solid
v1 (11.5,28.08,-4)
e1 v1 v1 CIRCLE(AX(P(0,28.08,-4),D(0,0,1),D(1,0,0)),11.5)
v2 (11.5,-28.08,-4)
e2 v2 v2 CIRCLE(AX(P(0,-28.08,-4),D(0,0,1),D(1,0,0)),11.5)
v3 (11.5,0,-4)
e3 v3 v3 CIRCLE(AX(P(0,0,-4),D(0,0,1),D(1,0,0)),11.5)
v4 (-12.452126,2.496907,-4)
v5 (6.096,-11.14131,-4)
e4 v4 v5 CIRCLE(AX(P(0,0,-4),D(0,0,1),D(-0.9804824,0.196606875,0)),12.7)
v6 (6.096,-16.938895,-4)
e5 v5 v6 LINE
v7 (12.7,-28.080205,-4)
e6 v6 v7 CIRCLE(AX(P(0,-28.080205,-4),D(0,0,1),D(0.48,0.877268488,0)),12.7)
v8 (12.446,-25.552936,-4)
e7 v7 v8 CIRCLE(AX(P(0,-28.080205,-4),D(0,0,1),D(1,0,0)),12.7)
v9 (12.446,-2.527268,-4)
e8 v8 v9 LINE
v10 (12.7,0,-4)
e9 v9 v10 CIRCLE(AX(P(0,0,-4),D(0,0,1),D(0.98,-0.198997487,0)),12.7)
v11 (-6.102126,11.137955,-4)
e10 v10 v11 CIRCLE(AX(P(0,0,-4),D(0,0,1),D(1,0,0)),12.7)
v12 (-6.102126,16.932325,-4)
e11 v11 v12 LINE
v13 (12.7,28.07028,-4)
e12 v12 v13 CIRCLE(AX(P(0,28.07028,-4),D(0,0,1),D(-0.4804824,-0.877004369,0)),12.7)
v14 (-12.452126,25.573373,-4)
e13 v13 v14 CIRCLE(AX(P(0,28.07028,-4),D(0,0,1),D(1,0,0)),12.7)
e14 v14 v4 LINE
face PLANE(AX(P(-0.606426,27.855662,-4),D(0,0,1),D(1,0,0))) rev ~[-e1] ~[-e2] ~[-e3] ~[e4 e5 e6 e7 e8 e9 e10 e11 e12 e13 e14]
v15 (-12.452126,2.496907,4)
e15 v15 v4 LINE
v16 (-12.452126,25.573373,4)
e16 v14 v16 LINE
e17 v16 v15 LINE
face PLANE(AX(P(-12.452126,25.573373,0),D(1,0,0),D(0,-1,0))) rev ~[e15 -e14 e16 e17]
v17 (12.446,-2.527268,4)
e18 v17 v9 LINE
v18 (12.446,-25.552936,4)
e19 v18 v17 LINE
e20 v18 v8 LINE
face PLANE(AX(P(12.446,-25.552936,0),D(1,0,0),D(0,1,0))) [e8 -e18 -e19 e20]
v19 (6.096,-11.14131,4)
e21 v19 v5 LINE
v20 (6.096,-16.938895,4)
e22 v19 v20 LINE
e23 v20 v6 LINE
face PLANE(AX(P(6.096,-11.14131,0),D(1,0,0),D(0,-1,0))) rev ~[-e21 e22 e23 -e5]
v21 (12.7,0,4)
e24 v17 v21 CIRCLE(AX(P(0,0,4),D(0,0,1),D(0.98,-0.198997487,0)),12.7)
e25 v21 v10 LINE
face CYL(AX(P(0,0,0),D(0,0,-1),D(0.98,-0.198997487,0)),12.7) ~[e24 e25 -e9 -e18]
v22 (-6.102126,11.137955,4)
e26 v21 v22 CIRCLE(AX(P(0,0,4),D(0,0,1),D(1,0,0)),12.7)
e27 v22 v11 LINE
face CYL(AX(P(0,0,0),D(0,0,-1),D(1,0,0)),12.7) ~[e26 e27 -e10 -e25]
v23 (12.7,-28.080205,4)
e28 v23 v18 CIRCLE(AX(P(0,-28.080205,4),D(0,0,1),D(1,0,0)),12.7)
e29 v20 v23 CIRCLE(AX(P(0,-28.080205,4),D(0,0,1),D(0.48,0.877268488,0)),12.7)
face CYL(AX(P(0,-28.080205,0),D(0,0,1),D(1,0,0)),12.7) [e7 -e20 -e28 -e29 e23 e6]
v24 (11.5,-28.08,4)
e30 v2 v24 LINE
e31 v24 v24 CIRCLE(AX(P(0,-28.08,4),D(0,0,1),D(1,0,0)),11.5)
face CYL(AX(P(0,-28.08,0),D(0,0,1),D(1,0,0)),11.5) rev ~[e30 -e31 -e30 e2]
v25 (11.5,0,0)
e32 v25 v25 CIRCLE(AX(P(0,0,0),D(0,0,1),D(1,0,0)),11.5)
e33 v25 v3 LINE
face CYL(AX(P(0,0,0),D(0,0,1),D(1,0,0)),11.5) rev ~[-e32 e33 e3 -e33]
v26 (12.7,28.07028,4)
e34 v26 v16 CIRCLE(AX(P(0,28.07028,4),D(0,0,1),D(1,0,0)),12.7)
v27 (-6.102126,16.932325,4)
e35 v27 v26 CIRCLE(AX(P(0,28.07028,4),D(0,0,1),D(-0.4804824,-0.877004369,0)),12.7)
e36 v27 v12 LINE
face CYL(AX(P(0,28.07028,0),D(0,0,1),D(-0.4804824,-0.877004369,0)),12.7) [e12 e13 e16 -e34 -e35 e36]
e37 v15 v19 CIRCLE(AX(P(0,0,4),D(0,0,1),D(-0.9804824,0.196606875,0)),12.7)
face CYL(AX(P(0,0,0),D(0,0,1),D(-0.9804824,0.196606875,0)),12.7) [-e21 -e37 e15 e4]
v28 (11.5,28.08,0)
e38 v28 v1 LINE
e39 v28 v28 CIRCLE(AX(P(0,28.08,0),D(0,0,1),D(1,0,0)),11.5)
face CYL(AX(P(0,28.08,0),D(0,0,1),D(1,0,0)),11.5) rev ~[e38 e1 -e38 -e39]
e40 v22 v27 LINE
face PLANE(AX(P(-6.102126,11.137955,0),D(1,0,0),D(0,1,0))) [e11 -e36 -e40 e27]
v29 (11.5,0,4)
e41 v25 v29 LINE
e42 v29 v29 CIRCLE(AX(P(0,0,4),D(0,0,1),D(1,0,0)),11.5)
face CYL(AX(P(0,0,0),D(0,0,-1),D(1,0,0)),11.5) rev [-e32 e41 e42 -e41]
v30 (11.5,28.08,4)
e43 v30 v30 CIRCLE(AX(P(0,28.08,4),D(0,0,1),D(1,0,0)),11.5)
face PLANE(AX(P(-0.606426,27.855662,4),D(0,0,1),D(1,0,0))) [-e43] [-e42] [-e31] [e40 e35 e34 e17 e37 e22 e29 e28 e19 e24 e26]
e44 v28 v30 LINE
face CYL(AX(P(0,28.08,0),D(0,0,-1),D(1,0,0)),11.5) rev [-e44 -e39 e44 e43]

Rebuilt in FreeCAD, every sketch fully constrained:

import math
import FreeCAD as App
import Part
import Sketcher
from FreeCAD import Vector

doc = App.newDocument("Part")
params = doc.addObject("Spreadsheet::Sheet", "Params")
for row, (alias, value) in enumerate([
    ("sketch1_radius", "12.7 mm"),
    ("pad1_length", "8 mm"),
    ("sketch2_diameter", "23 mm"),
    ("pocket1_length", "8 mm"),
], start=1):
    params.set(f"A{row}", alias)
    params.set(f"B{row}", "=" + value)
    params.setAlias(f"B{row}", alias)

body = doc.addObject("PartDesign::Body", "Body")

# Sketch on XY plane
sketch1 = doc.addObject("Sketcher::SketchObject", "Sketch")
body.addObject(sketch1)
sketch1.AttachmentSupport = (doc.XY_Plane, [""])
sketch1.MapMode = "FlatFace"
sketch1.addGeometry(Part.ArcOfCircle(Part.Circle(Vector(0, 28.07028, 0), Vector(0, 0, 1), 12.7), math.radians(-118.716913), math.radians(0)), False)
sketch1.addGeometry(Part.ArcOfCircle(Part.Circle(Vector(0, 28.07028, 0), Vector(0, 0, 1), 12.7), math.radians(0), math.radians(191.338608)), False)
sketch1.addGeometry(Part.LineSegment(Vector(-12.452126, 25.573373, 0), Vector(-12.452126, 2.496907, 0)), False)
sketch1.addGeometry(Part.ArcOfCircle(Part.Circle(Vector(0, 0, 0), Vector(0, 0, 1), 12.7), math.radians(168.661392), math.radians(298.685402)), False)
sketch1.addGeometry(Part.LineSegment(Vector(6.096, -11.14131, 0), Vector(6.096, -16.938895, 0)), False)
sketch1.addGeometry(Part.ArcOfCircle(Part.Circle(Vector(0, -28.080205, 0), Vector(0, 0, 1), 12.7), math.radians(61.314598), math.radians(360)), False)
sketch1.addGeometry(Part.ArcOfCircle(Part.Circle(Vector(0, -28.080205, 0), Vector(0, 0, 1), 12.7), math.radians(0), math.radians(11.478341)), False)
sketch1.addGeometry(Part.LineSegment(Vector(12.446, -25.552936, 0), Vector(12.446, -2.527268, 0)), False)
sketch1.addGeometry(Part.ArcOfCircle(Part.Circle(Vector(0, 0, 0), Vector(0, 0, 1), 12.7), math.radians(-11.478341), math.radians(0)), False)
sketch1.addGeometry(Part.ArcOfCircle(Part.Circle(Vector(0, 0, 0), Vector(0, 0, 1), 12.7), math.radians(0), math.radians(118.716913)), False)
sketch1.addGeometry(Part.LineSegment(Vector(-6.102126, 11.137955, 0), Vector(-6.102126, 16.932325, 0)), False)
sketch1.addConstraint(Sketcher.Constraint("Tangent", 0, 2, 1, 1))
sketch1.addConstraint(Sketcher.Constraint("Coincident", 1, 2, 2, 1))
sketch1.addConstraint(Sketcher.Constraint("Coincident", 2, 2, 3, 1))
sketch1.addConstraint(Sketcher.Constraint("Coincident", 3, 2, 4, 1))
sketch1.addConstraint(Sketcher.Constraint("Coincident", 4, 2, 5, 1))
sketch1.addConstraint(Sketcher.Constraint("Tangent", 5, 2, 6, 1))
sketch1.addConstraint(Sketcher.Constraint("Coincident", 6, 2, 7, 1))
sketch1.addConstraint(Sketcher.Constraint("Coincident", 7, 2, 8, 1))
sketch1.addConstraint(Sketcher.Constraint("Tangent", 8, 2, 9, 1))
sketch1.addConstraint(Sketcher.Constraint("Coincident", 9, 2, 10, 1))
sketch1.addConstraint(Sketcher.Constraint("Coincident", 10, 2, 0, 1))
sketch1.addConstraint(Sketcher.Constraint("Vertical", 2))
sketch1.addConstraint(Sketcher.Constraint("Vertical", 4))
sketch1.addConstraint(Sketcher.Constraint("Vertical", 7))
sketch1.addConstraint(Sketcher.Constraint("Vertical", 10))
sketch1.addConstraint(Sketcher.Constraint("Coincident", 3, 3, -1, 1))
sketch1.addConstraint(Sketcher.Constraint("Coincident", 8, 3, -1, 1))
sketch1.addConstraint(Sketcher.Constraint("Equal", 0, 1))
sketch1.addConstraint(Sketcher.Constraint("Equal", 1, 3))
sketch1.addConstraint(Sketcher.Constraint("Equal", 3, 5))
sketch1.addConstraint(Sketcher.Constraint("Equal", 5, 6))
sketch1.addConstraint(Sketcher.Constraint("Equal", 6, 8))
sketch1.addConstraint(Sketcher.Constraint("Equal", 8, 9))
sketch1.addConstraint(Sketcher.Constraint("PointOnObject", 0, 3, -2))
sketch1.addConstraint(Sketcher.Constraint("PointOnObject", 5, 3, -2))
sketch1.addConstraint(Sketcher.Constraint("PointOnObject", 8, 2, -1))
sketch1.addConstraint(Sketcher.Constraint("Horizontal", 1, 3, 0, 2))
sketch1.addConstraint(Sketcher.Constraint("Horizontal", 6, 3, 5, 2))
sketch1.addConstraint(Sketcher.Constraint("Radius", 0, 12.7))
sketch1.addConstraint(Sketcher.Constraint("DistanceX", 4, 2, 6, 2, 6.35))
sketch1.addConstraint(Sketcher.Constraint("DistanceX", 2, 2, 9, 2, 6.35))
sketch1.addConstraint(Sketcher.Constraint("DistanceX", -1, 1, 3, 2, 6.096))
sketch1.addConstraint(Sketcher.Constraint("DistanceY", 7, 1, 7, 2, 23.025668))
sketch1.addConstraint(Sketcher.Constraint("DistanceY", 10, 1, 10, 2, 5.794369))
sketch1.addConstraint(Sketcher.Constraint("DistanceY", 2, 2, 2, 1, 23.076466))
sketch1.setExpression("Constraints[28]", "Params.sketch1_radius")
pad1 = doc.addObject("PartDesign::Pad", "Pad")
body.addObject(pad1)
pad1.Profile = sketch1
pad1.setExpression("Length", "Params.pad1_length")
pad1.Midplane = True

# Sketch on XY plane
sketch2 = doc.addObject("Sketcher::SketchObject", "Sketch001")
body.addObject(sketch2)
sketch2.AttachmentSupport = (doc.XY_Plane, [""])
sketch2.MapMode = "FlatFace"
sketch2.addGeometry(Part.Circle(Vector(0, 0, 0), Vector(0, 0, 1), 11.5), False)
sketch2.addGeometry(Part.Circle(Vector(0, 28.08, 0), Vector(0, 0, 1), 11.5), False)
sketch2.addGeometry(Part.Circle(Vector(0, -28.08, 0), Vector(0, 0, 1), 11.5), False)
sketch2.addConstraint(Sketcher.Constraint("Coincident", 0, 3, -1, 1))
sketch2.addConstraint(Sketcher.Constraint("Equal", 0, 1))
sketch2.addConstraint(Sketcher.Constraint("Equal", 1, 2))
sketch2.addConstraint(Sketcher.Constraint("Symmetric", 1, 3, 2, 3, -1, 1))
sketch2.addConstraint(Sketcher.Constraint("PointOnObject", 1, 3, -2))
sketch2.addConstraint(Sketcher.Constraint("Diameter", 0, 23.0))
sketch2.addConstraint(Sketcher.Constraint("DistanceY", -1, 1, 1, 3, 28.08))
sketch2.setExpression("Constraints[5]", "Params.sketch2_diameter")
pocket1 = doc.addObject("PartDesign::Pocket", "Pocket")
body.addObject(pocket1)
pocket1.Profile = sketch2
pocket1.setExpression("Length", "Params.pocket1_length")
pocket1.Midplane = True

doc.recompute()
